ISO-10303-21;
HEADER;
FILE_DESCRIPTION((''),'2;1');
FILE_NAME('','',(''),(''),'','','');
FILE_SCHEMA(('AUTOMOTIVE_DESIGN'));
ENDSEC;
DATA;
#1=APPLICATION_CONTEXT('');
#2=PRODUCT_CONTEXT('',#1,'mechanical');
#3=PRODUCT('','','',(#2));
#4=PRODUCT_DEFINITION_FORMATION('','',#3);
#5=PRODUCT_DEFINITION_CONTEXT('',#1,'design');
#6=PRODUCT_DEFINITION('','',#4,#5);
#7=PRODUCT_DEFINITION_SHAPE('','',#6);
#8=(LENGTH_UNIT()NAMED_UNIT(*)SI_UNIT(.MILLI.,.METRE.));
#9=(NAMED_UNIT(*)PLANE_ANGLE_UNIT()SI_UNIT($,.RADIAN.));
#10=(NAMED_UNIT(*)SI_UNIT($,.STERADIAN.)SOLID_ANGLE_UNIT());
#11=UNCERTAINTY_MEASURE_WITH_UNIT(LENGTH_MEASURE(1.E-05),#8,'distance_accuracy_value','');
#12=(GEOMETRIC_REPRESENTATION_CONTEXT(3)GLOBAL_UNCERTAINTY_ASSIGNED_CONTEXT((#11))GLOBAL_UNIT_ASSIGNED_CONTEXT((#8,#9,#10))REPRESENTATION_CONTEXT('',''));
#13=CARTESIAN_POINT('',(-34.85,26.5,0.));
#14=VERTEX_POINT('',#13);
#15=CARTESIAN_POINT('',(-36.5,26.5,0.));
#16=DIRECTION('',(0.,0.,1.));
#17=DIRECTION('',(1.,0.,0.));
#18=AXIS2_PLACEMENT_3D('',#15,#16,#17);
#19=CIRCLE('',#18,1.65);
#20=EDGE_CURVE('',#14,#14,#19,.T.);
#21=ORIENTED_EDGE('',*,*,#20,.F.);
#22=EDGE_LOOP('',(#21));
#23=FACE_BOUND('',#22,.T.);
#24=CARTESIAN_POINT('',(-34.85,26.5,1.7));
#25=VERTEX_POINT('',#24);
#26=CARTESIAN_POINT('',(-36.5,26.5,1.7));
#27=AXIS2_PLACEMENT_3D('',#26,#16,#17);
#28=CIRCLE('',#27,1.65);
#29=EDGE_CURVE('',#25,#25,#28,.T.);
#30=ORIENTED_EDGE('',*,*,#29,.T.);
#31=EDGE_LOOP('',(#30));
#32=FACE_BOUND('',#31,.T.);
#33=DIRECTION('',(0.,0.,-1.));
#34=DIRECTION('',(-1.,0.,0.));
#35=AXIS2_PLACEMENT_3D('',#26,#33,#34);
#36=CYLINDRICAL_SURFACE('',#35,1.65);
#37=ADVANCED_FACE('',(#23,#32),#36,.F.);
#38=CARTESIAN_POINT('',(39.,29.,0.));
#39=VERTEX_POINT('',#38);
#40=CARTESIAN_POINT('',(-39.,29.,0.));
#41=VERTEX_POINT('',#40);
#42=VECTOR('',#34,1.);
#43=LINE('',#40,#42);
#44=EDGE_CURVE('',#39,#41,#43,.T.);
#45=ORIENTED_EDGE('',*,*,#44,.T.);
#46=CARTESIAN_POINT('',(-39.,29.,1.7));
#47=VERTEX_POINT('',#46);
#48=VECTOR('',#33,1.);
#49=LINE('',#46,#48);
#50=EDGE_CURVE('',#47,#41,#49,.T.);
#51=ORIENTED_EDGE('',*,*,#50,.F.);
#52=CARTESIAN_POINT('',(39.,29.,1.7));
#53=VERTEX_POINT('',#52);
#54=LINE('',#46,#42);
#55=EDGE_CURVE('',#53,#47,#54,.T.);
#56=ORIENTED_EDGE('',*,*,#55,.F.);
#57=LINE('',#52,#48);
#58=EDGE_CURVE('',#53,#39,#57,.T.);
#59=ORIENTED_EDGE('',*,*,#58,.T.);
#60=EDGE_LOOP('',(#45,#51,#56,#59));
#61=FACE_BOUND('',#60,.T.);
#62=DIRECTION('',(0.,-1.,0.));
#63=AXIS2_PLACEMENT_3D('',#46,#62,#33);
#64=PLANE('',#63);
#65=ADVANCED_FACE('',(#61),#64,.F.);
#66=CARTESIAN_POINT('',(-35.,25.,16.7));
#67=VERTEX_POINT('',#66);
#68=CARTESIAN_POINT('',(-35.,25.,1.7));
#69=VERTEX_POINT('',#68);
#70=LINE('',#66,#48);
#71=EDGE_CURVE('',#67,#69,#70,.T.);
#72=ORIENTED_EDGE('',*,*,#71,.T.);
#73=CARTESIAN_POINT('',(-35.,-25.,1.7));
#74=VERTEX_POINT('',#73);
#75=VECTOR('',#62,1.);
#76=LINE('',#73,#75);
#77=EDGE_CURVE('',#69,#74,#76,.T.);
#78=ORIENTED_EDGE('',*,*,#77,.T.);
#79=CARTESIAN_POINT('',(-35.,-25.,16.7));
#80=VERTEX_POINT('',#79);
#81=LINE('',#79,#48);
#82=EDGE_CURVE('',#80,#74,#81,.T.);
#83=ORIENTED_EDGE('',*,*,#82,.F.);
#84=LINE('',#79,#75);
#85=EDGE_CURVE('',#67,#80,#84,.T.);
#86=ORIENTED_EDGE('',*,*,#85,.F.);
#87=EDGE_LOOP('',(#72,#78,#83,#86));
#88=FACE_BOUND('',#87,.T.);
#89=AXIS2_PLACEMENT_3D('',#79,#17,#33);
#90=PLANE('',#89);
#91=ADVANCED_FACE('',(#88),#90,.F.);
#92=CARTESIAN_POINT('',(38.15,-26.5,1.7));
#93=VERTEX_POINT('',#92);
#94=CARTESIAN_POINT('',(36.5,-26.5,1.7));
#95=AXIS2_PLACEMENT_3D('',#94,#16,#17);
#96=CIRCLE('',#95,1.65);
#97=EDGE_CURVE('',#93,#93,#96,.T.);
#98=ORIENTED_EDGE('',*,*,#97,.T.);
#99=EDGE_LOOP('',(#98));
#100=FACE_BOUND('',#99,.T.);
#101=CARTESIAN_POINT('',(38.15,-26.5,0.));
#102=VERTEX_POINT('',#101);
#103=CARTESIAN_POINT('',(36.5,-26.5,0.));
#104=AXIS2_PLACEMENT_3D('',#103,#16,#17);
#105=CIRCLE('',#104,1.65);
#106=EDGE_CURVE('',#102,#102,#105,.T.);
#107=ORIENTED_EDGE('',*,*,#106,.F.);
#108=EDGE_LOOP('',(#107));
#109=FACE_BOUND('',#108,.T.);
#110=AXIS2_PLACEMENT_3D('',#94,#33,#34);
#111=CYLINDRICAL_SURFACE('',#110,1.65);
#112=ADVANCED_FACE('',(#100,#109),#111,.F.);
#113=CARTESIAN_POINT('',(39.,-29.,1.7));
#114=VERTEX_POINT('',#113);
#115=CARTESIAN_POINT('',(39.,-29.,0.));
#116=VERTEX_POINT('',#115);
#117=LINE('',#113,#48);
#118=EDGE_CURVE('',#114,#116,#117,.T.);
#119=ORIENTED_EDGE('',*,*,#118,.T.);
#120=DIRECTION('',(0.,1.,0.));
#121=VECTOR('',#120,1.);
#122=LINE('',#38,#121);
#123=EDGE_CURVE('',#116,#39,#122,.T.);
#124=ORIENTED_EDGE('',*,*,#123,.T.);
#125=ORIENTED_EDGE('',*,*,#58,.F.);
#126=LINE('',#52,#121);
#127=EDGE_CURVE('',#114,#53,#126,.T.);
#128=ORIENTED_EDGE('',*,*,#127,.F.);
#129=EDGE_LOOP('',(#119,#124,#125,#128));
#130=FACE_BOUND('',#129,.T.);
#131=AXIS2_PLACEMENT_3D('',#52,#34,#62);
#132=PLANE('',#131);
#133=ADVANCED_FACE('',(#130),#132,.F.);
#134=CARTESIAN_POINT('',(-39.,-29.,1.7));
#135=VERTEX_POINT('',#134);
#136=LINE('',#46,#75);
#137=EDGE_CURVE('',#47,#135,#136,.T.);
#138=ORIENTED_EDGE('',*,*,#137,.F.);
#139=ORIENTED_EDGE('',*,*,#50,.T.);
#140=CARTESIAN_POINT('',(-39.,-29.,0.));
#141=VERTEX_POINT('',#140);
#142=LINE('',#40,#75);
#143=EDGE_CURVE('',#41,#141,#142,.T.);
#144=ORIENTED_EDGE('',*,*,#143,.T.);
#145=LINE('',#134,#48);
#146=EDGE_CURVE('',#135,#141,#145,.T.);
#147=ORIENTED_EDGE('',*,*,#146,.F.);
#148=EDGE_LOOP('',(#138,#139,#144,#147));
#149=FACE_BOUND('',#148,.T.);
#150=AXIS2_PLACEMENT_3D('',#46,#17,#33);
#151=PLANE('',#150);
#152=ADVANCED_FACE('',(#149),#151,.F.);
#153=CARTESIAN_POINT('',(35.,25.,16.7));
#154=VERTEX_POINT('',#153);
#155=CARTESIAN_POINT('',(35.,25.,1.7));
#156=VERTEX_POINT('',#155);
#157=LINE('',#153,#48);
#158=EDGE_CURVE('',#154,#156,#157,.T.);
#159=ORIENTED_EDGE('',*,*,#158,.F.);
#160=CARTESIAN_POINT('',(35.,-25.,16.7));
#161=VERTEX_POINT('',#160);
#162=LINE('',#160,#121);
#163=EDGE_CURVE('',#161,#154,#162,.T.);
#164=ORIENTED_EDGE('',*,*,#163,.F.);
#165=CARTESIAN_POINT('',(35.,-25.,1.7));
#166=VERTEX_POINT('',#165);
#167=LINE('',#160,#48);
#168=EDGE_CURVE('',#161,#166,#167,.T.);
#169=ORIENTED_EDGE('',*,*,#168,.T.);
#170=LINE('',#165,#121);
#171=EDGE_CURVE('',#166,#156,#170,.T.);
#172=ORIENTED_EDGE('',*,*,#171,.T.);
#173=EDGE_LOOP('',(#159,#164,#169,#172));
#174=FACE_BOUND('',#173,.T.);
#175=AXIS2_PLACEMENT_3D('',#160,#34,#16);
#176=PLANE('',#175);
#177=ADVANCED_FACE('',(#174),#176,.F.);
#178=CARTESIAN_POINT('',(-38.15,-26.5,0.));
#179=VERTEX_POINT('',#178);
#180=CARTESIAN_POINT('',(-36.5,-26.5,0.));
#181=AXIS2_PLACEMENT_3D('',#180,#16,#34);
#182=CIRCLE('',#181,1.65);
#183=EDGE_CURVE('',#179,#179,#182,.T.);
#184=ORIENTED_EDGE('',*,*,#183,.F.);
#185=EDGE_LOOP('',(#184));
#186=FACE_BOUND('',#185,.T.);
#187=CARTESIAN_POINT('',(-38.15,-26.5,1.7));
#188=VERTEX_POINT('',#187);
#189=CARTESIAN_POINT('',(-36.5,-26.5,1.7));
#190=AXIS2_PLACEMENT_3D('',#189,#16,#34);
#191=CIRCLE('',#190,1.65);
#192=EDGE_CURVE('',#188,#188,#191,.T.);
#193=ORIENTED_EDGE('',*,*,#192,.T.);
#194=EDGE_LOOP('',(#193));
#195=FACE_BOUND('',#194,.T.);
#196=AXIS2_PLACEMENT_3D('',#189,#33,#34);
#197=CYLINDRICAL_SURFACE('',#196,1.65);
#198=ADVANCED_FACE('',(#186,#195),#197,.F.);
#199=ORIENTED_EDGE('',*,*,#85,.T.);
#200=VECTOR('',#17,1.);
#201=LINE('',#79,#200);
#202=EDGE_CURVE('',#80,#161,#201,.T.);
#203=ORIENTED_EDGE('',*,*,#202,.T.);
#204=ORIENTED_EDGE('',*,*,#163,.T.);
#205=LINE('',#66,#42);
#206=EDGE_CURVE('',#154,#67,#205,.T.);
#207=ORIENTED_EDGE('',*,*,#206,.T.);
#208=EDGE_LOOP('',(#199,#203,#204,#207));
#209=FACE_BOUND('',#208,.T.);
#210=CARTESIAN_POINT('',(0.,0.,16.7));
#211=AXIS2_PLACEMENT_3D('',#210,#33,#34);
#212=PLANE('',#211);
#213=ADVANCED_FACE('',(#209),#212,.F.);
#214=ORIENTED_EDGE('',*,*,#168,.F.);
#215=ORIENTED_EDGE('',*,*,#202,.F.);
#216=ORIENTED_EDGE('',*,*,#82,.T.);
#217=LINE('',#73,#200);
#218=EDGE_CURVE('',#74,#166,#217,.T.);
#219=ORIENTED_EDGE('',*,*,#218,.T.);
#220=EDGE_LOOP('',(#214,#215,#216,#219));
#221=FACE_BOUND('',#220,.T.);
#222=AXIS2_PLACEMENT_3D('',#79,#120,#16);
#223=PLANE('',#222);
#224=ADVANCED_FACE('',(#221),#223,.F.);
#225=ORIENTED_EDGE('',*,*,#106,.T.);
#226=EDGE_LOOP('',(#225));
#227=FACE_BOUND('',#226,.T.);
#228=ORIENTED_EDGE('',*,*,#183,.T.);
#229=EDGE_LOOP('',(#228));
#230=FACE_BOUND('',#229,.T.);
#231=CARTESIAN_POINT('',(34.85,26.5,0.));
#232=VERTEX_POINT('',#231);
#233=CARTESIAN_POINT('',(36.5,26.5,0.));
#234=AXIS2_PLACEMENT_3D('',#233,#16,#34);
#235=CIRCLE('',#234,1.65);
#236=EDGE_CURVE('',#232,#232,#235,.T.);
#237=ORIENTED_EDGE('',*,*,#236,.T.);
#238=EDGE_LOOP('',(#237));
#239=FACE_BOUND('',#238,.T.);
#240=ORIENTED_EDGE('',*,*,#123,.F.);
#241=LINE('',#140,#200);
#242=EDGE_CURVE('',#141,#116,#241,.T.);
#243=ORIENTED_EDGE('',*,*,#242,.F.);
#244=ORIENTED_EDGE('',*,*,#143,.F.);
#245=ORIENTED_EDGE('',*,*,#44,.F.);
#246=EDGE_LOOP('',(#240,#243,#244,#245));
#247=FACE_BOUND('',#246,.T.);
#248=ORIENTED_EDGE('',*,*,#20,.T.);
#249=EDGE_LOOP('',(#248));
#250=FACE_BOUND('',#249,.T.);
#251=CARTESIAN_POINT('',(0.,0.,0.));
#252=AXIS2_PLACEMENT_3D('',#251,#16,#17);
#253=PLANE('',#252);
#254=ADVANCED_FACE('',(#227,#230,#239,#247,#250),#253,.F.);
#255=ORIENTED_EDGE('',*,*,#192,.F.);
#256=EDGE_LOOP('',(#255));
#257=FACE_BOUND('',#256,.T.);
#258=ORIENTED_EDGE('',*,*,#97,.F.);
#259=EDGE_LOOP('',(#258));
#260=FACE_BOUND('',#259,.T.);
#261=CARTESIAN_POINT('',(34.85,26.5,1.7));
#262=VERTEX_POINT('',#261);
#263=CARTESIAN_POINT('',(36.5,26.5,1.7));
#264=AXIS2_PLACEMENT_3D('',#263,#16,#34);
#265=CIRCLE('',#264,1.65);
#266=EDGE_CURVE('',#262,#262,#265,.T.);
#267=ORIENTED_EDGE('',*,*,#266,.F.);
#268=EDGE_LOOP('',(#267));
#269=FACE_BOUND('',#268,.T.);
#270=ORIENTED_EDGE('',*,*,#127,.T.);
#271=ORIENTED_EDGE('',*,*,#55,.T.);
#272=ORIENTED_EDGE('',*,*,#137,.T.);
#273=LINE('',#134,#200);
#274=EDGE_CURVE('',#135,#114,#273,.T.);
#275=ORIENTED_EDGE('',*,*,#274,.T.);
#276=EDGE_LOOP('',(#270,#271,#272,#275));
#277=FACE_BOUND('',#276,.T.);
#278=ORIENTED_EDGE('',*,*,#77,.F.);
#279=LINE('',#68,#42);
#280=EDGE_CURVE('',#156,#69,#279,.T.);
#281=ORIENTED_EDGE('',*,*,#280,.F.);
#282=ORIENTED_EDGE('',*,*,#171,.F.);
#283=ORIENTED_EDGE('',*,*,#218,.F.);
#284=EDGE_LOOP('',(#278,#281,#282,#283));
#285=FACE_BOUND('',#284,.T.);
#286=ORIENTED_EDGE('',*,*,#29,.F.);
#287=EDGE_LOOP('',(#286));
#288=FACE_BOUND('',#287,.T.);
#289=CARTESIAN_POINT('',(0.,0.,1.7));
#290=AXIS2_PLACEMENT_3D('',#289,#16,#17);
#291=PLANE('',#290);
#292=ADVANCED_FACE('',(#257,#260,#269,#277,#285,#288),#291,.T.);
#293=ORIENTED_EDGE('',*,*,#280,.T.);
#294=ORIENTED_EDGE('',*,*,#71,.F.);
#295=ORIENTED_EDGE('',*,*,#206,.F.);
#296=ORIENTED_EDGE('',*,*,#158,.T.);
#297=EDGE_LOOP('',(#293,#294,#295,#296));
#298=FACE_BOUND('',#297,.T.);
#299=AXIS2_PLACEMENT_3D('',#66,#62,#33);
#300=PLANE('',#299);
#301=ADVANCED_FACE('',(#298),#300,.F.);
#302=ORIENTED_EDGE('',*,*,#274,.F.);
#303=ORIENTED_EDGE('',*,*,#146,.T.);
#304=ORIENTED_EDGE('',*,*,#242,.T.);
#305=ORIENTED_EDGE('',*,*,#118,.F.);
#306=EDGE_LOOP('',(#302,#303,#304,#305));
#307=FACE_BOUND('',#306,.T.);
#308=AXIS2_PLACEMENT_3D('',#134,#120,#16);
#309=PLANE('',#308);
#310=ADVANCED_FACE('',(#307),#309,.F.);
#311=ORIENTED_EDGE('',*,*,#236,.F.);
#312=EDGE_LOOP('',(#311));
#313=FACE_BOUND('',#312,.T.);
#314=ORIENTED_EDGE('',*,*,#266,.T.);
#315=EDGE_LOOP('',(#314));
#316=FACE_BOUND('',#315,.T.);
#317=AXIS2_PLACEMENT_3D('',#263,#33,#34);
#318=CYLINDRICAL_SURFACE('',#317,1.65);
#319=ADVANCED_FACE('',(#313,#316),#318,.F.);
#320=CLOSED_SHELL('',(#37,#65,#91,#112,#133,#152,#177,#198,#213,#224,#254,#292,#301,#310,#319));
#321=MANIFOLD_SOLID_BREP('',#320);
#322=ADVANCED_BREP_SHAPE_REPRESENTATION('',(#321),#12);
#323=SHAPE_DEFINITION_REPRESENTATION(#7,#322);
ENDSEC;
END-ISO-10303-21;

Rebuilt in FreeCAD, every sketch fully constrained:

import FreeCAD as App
import Part
import Sketcher
Q = App.Units.Quantity


def add_polygon(sketch, points):
    """Adds a closed chain of lines whose ends are joined by coincident constraints."""
    first, n = sketch.GeometryCount, len(points)
    for a, b in zip(points, points[1:] + points[:1]):
        sketch.addGeometry(Part.LineSegment(App.Vector(*a, 0), App.Vector(*b, 0)), False)
    for i in range(n):
        sketch.addConstraint(Sketcher.Constraint("Coincident", first + i, 2, first + (i + 1) % n, 1))

doc = App.newDocument("Part")
body = doc.addObject("PartDesign::Body", "Body")

# Sketch on XY plane
sketch1 = body.newObject("Sketcher::SketchObject", "Sketch")
sketch1.AttachmentSupport = (doc.getObject("XY_Plane"), [""])
sketch1.MapMode = "FlatFace"
add_polygon(sketch1, [(-39, 29), (-39, -29), (39, -29), (39, 29)])  # lines 0-3
sketch1.addGeometry(Part.Circle(App.Vector(-36.5, -26.5, 0), App.Vector(0, 0, 1), 1.65), False)  # 4
sketch1.addGeometry(Part.Circle(App.Vector(36.5, -26.5, 0), App.Vector(0, 0, 1), 1.65), False)  # 5
sketch1.addGeometry(Part.Circle(App.Vector(-36.5, 26.5, 0), App.Vector(0, 0, 1), 1.65), False)  # 6
sketch1.addGeometry(Part.Circle(App.Vector(36.5, 26.5, 0), App.Vector(0, 0, 1), 1.65), False)  # 7
sketch1.addConstraint([
    Sketcher.Constraint("Vertical", 0),
    Sketcher.Constraint("Horizontal", 1),
    Sketcher.Constraint("Vertical", 2),
    Sketcher.Constraint("Horizontal", 3),
    Sketcher.Constraint("Equal", 4, 5),
    Sketcher.Constraint("Equal", 5, 6),
    Sketcher.Constraint("Equal", 6, 7),
    Sketcher.Constraint("Symmetric", 5, 3, 6, 3, -1, 1),
    Sketcher.Constraint("Symmetric", 4, 3, 7, 3, -1, 1),
    Sketcher.Constraint("Symmetric", 0, 2, 2, 2, -1, 1),
    Sketcher.Constraint("Symmetric", 4, 3, 5, 3, -2),
    Sketcher.Constraint("Diameter", 4, Q("3.3 mm")),
    Sketcher.Constraint("DistanceX", 1, 1, 1, 2, Q("78 mm")),
    Sketcher.Constraint("DistanceY", 0, 2, 0, 1, Q("58 mm")),
    Sketcher.Constraint("DistanceX", 4, 3, 5, 3, Q("73 mm")),
    Sketcher.Constraint("DistanceY", 4, 3, 6, 3, Q("53 mm")),
])
pad1 = body.newObject("PartDesign::Pad", "Pad")
pad1.Profile = sketch1
pad1.Length = 1.7

# Sketch on XY plane
sketch2 = body.newObject("Sketcher::SketchObject", "Sketch001")
sketch2.AttachmentSupport = (doc.getObject("XY_Plane"), [""])
sketch2.MapMode = "FlatFace"
sketch2.AttachmentOffset = App.Placement(App.Vector(0, 0, 1.7), App.Rotation())
add_polygon(sketch2, [(-35, 25), (-35, -25), (35, -25), (35, 25)])  # lines 0-3
sketch2.addConstraint([
    Sketcher.Constraint("Vertical", 0),
    Sketcher.Constraint("Horizontal", 1),
    Sketcher.Constraint("Vertical", 2),
    Sketcher.Constraint("Horizontal", 3),
    Sketcher.Constraint("Symmetric", 0, 2, 2, 2, -1, 1),
    Sketcher.Constraint("DistanceX", 1, 1, 1, 2, Q("70 mm")),
    Sketcher.Constraint("DistanceY", 0, 2, 0, 1, Q("50 mm")),
])
pad2 = body.newObject("PartDesign::Pad", "Pad001")
pad2.Profile = sketch2
pad2.Length = 15

doc.recompute()
